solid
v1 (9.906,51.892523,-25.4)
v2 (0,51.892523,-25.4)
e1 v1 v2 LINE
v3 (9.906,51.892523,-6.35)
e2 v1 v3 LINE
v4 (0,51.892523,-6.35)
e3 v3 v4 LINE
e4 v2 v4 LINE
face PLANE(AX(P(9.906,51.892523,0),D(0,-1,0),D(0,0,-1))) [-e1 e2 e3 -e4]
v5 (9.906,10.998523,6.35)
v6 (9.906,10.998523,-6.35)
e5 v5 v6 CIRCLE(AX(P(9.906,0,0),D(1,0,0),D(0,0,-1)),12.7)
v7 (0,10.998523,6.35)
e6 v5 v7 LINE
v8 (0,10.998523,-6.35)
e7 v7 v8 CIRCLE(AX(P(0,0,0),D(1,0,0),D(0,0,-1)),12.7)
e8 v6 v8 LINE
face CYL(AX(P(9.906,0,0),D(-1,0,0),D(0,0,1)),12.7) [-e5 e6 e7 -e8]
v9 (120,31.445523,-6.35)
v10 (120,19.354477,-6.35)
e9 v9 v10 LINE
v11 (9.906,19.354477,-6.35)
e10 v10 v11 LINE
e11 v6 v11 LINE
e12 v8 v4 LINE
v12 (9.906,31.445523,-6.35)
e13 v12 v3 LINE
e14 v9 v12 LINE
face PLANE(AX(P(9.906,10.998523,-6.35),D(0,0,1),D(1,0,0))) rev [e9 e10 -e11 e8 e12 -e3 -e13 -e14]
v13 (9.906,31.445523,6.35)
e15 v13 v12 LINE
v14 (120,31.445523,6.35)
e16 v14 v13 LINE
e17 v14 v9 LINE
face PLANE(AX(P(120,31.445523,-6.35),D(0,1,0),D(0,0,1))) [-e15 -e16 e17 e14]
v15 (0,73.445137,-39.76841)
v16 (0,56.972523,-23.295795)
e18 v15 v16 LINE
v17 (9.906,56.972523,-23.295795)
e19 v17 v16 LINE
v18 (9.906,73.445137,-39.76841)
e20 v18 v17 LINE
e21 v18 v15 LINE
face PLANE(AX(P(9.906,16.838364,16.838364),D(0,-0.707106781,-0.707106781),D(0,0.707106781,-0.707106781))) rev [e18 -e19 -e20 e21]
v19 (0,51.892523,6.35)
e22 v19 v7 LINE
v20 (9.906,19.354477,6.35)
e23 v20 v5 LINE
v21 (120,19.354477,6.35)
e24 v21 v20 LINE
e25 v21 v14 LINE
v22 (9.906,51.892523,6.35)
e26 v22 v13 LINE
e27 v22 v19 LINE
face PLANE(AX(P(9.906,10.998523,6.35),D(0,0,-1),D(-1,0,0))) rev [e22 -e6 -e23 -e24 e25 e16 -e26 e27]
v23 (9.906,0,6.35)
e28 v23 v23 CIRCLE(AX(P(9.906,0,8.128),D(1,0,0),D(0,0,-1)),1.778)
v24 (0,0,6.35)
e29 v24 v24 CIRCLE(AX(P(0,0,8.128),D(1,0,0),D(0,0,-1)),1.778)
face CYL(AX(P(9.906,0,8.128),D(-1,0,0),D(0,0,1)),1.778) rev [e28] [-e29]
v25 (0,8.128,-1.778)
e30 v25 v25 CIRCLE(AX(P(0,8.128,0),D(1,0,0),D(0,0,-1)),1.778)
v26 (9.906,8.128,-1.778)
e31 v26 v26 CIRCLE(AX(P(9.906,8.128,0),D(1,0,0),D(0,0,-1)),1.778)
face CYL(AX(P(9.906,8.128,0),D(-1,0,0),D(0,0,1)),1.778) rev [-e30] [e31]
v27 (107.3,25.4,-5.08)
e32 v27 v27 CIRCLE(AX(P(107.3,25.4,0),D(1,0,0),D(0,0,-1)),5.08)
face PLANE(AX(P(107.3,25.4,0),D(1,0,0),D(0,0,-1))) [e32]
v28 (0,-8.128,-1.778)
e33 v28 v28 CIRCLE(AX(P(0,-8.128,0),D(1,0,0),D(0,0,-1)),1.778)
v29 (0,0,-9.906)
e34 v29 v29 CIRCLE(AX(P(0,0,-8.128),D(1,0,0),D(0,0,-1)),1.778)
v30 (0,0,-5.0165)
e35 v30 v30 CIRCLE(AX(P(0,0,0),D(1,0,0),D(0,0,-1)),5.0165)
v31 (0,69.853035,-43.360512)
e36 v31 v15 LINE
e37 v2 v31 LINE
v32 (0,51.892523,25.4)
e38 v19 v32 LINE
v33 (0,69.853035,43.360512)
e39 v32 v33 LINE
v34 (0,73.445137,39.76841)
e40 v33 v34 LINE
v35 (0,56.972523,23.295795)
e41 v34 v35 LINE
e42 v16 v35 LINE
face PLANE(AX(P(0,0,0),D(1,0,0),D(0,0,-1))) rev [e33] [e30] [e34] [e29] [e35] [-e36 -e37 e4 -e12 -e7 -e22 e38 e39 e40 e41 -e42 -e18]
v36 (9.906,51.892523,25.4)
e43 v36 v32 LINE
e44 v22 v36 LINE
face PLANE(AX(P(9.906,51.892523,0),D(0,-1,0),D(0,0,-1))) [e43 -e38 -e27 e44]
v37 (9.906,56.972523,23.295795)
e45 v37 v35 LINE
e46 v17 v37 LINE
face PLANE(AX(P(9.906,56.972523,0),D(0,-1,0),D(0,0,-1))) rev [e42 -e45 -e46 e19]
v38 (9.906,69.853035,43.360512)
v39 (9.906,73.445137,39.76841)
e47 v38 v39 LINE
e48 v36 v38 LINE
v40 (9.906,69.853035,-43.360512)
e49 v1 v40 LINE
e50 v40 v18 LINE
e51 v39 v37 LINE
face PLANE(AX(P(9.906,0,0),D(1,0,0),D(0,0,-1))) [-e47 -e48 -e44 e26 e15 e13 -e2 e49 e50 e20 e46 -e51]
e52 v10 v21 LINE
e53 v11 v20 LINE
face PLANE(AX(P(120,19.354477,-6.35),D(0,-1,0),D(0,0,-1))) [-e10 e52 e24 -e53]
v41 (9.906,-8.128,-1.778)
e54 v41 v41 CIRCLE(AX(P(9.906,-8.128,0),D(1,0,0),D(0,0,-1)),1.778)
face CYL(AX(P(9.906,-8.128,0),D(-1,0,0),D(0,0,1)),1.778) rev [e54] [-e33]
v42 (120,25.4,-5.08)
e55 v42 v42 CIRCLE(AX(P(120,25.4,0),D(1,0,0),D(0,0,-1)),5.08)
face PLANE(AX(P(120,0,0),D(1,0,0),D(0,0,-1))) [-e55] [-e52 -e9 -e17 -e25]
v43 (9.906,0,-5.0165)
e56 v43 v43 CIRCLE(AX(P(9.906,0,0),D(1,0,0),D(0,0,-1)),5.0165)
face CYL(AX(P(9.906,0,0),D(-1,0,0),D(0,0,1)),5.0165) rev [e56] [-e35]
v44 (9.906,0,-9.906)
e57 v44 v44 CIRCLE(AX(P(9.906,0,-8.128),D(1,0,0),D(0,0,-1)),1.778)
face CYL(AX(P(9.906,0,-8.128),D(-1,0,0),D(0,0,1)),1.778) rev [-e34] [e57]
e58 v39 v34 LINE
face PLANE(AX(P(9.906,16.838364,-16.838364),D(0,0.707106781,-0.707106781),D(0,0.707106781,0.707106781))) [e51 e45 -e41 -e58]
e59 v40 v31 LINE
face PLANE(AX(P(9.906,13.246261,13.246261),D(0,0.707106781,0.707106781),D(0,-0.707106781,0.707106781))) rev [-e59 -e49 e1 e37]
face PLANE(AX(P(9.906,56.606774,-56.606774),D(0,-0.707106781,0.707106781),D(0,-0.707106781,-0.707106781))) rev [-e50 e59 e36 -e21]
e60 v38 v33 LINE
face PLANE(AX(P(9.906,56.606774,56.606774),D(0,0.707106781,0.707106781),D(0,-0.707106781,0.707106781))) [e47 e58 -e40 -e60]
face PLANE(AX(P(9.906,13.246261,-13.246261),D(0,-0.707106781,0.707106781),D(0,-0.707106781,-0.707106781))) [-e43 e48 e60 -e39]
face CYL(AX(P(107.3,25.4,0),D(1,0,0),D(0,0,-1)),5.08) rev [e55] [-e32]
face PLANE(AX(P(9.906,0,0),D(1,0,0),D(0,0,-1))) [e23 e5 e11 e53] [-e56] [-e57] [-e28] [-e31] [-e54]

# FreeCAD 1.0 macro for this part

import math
import FreeCAD as App
import Part
import Sketcher
from FreeCAD import Vector
Q = App.Units.Quantity


def add_polygon(sketch, points):
    """Adds a closed chain of lines whose ends are joined by coincident constraints."""
    first, n = sketch.GeometryCount, len(points)
    for a, b in zip(points, points[1:] + points[:1]):
        sketch.addGeometry(Part.LineSegment(App.Vector(*a, 0), App.Vector(*b, 0)), False)
    for i in range(n):
        sketch.addConstraint(Sketcher.Constraint("Coincident", first + i, 2, first + (i + 1) % n, 1))

doc = App.newDocument("Part")
params = doc.addObject("Spreadsheet::Sheet", "Params")
for row, (alias, value) in enumerate([
    ("sketch1_radius", "0.5 in"),
    ("sketch1_diameter", "0.14 in"),
    ("sketch1_diameter2", "0.395 in"),
    ("sketch1_height", "0.5 in"),
    ("sketch1_width", "1.61 in"),
    ("pad1_length", "0.39 in"),
    ("sketch2_height", "2 in"),
    ("sketch2_length", "1 in"),
    ("sketch2_length2", "0.2 in"),
    ("pad2_length", "0.39 in"),
    ("sketch3_height", "0.5 in"),
    ("pad3_length", "110.094 mm"),
    ("sketch4_diameter", "0.4 in"),
    ("pocket1_length", "0.5 in"),
], start=1):
    params.set(f"A{row}", alias)
    params.set(f"B{row}", "=" + value)
    params.setAlias(f"B{row}", alias)

body = doc.addObject("PartDesign::Body", "Body")

# Sketch on YZ plane
sketch1 = body.newObject("Sketcher::SketchObject", "Sketch")
sketch1.AttachmentSupport = (doc.getObject("YZ_Plane"), [""])
sketch1.MapMode = "FlatFace"
sketch1.addGeometry([
    Part.LineSegment(Vector(51.9, 6.3, 0), Vector(11, 6.3, 0)),  # 0
    Part.ArcOfCircle(Part.Circle(Vector(0, 0, 0), Vector(0, 0, 1), 12.7), math.radians(30), math.radians(330)),  # 1
    Part.LineSegment(Vector(11, -6.3, 0), Vector(51.9, -6.3, 0)),  # 2
    Part.LineSegment(Vector(51.9, -6.3, 0), Vector(51.9, 6.3, 0)),  # 3
    Part.Circle(Vector(-8.1, 0, 0), Vector(0, 0, 1), 1.8),  # 4
    Part.Circle(Vector(0, -8.1, 0), Vector(0, 0, 1), 1.8),  # 5
    Part.Circle(Vector(0, 0, 0), Vector(0, 0, 1), 5),  # 6
    Part.Circle(Vector(0, 8.1, 0), Vector(0, 0, 1), 1.8),  # 7
    Part.Circle(Vector(8.1, 0, 0), Vector(0, 0, 1), 1.8),  # 8
], False)
sketch1.addConstraint([
    Sketcher.Constraint("Coincident", 0, 2, 1, 1),
    Sketcher.Constraint("Coincident", 1, 2, 2, 1),
    Sketcher.Constraint("Coincident", 2, 2, 3, 1),
    Sketcher.Constraint("Coincident", 3, 2, 0, 1),
    Sketcher.Constraint("Horizontal", 0),
    Sketcher.Constraint("Horizontal", 2),
    Sketcher.Constraint("Vertical", 3),
    Sketcher.Constraint("Coincident", 1, 3, -1, 1),
    Sketcher.Constraint("Coincident", 6, 3, -1, 1),
    Sketcher.Constraint("Equal", 4, 5),
    Sketcher.Constraint("Equal", 5, 7),
    Sketcher.Constraint("Equal", 7, 8),
    Sketcher.Constraint("Symmetric", 5, 3, 7, 3, -1, 1),
    Sketcher.Constraint("Symmetric", 4, 3, 8, 3, -1, 1),
    Sketcher.Constraint("PointOnObject", 4, 3, -1),
    Sketcher.Constraint("PointOnObject", 5, 3, -2),
    Sketcher.Constraint("Vertical", 0, 2, 1, 2),
    Sketcher.Constraint("Radius", 1, Q("0.5 in")),
    Sketcher.Constraint("Diameter", 4, Q("0.14 in")),
    Sketcher.Constraint("Diameter", 6, Q("0.395 in")),
    Sketcher.Constraint("DistanceY", 3, 1, 3, 2, Q("0.5 in")),
    Sketcher.Constraint("DistanceX", 0, 2, 0, 1, Q("1.61 in")),
    Sketcher.Constraint("DistanceX", 4, 3, -1, 1, Q("0.32 in")),
    Sketcher.Constraint("DistanceY", 5, 3, -1, 1, Q("0.32 in")),
])
sketch1.setExpression("Constraints[17]", "Params.sketch1_radius")
sketch1.setExpression("Constraints[18]", "Params.sketch1_diameter")
sketch1.setExpression("Constraints[19]", "Params.sketch1_diameter2")
sketch1.setExpression("Constraints[20]", "Params.sketch1_height")
sketch1.setExpression("Constraints[21]", "Params.sketch1_width")
pad1 = body.newObject("PartDesign::Pad", "Pad")
pad1.Profile = sketch1
pad1.setExpression("Length", "Params.pad1_length")

# Sketch on YZ plane
sketch2 = body.newObject("Sketcher::SketchObject", "Sketch001")
sketch2.AttachmentSupport = (doc.getObject("YZ_Plane"), [""])
sketch2.MapMode = "FlatFace"
add_polygon(sketch2, [(52, 25), (52, -25), (70, -43), (73, -40), (57, -23), (57, 23), (73, 40), (70, 43)])  # lines 0-7
sketch2.addConstraint([
    Sketcher.Constraint("Vertical", 0),
    Sketcher.Constraint("Vertical", 4),
    Sketcher.Constraint("Symmetric", 2, 2, 5, 2, -1),
    Sketcher.Constraint("Symmetric", 1, 2, 6, 2, -1),
    Sketcher.Constraint("Perpendicular", 1, 2),
    Sketcher.Constraint("Perpendicular", 2, 3),
    Sketcher.Constraint("Perpendicular", 3, 5),
    Sketcher.Constraint("Perpendicular", 5, 6),
    Sketcher.Constraint("Perpendicular", 6, 7),
    Sketcher.Constraint("DistanceY", 0, 2, 0, 1, Q("2 in")),
    Sketcher.Constraint("Distance", 1, Q("1 in")),
    Sketcher.Constraint("Distance", 2, Q("0.2 in")),
    Sketcher.Constraint("DistanceX", 0, 2, 3, 2, Q("0.2 in")),
    Sketcher.Constraint("DistanceX", -1, 1, 0, 2, Q("51.892523 mm")),
])
sketch2.setExpression("Constraints[17]", "Params.sketch2_height")
sketch2.setExpression("Constraints[18]", "Params.sketch2_length")
sketch2.setExpression("Constraints[19]", "Params.sketch2_length2")
pad2 = body.newObject("PartDesign::Pad", "Pad001")
pad2.Profile = sketch2
pad2.setExpression("Length", "Params.pad2_length")

# Sketch on YZ plane
sketch3 = body.newObject("Sketcher::SketchObject", "Sketch002")
sketch3.AttachmentSupport = (doc.getObject("YZ_Plane"), [""])
sketch3.MapMode = "FlatFace"
sketch3.AttachmentOffset = App.Placement(Vector(0, 0, 0.39 * 25.4), App.Rotation())
add_polygon(sketch3, [(31, -6), (19, -6), (19, 6), (31, 6)])  # lines 0-3
sketch3.addConstraint([
    Sketcher.Constraint("Horizontal", 0),
    Sketcher.Constraint("Vertical", 1),
    Sketcher.Constraint("Horizontal", 2),
    Sketcher.Constraint("Vertical", 3),
    Sketcher.Constraint("DistanceY", 1, 1, 1, 2, Q("0.5 in")),
    Sketcher.Constraint("DistanceY", 0, 2, -1, 1, Q("0.25 in")),
    Sketcher.Constraint("DistanceX", 0, 2, 0, 1, Q("12.091045 mm")),
    Sketcher.Constraint("DistanceX", -1, 1, 0, 2, Q("19.354477 mm")),
])
sketch3.setExpression("Constraints[8]", "Params.sketch3_height")
pad3 = body.newObject("PartDesign::Pad", "Pad002")
pad3.Profile = sketch3
pad3.setExpression("Length", "Params.pad3_length")

# Sketch on YZ plane
sketch4 = body.newObject("Sketcher::SketchObject", "Sketch003")
sketch4.AttachmentSupport = (doc.getObject("YZ_Plane"), [""])
sketch4.MapMode = "FlatFace"
sketch4.AttachmentOffset = App.Placement(Vector(0, 0, 120), App.Rotation())
sketch4.addGeometry(Part.Circle(Vector(25, 0, 0), Vector(0, 0, 1), 5), False)
sketch4.addConstraint([
    Sketcher.Constraint("PointOnObject", 0, 3, -1),
    Sketcher.Constraint("Diameter", 0, Q("0.4 in")),
    Sketcher.Constraint("DistanceX", -1, 1, 0, 3, Q("1 in")),
])
sketch4.setExpression("Constraints[1]", "Params.sketch4_diameter")
pocket1 = body.newObject("PartDesign::Pocket", "Pocket")
pocket1.Profile = sketch4
pocket1.setExpression("Length", "Params.pocket1_length")

doc.recompute()
